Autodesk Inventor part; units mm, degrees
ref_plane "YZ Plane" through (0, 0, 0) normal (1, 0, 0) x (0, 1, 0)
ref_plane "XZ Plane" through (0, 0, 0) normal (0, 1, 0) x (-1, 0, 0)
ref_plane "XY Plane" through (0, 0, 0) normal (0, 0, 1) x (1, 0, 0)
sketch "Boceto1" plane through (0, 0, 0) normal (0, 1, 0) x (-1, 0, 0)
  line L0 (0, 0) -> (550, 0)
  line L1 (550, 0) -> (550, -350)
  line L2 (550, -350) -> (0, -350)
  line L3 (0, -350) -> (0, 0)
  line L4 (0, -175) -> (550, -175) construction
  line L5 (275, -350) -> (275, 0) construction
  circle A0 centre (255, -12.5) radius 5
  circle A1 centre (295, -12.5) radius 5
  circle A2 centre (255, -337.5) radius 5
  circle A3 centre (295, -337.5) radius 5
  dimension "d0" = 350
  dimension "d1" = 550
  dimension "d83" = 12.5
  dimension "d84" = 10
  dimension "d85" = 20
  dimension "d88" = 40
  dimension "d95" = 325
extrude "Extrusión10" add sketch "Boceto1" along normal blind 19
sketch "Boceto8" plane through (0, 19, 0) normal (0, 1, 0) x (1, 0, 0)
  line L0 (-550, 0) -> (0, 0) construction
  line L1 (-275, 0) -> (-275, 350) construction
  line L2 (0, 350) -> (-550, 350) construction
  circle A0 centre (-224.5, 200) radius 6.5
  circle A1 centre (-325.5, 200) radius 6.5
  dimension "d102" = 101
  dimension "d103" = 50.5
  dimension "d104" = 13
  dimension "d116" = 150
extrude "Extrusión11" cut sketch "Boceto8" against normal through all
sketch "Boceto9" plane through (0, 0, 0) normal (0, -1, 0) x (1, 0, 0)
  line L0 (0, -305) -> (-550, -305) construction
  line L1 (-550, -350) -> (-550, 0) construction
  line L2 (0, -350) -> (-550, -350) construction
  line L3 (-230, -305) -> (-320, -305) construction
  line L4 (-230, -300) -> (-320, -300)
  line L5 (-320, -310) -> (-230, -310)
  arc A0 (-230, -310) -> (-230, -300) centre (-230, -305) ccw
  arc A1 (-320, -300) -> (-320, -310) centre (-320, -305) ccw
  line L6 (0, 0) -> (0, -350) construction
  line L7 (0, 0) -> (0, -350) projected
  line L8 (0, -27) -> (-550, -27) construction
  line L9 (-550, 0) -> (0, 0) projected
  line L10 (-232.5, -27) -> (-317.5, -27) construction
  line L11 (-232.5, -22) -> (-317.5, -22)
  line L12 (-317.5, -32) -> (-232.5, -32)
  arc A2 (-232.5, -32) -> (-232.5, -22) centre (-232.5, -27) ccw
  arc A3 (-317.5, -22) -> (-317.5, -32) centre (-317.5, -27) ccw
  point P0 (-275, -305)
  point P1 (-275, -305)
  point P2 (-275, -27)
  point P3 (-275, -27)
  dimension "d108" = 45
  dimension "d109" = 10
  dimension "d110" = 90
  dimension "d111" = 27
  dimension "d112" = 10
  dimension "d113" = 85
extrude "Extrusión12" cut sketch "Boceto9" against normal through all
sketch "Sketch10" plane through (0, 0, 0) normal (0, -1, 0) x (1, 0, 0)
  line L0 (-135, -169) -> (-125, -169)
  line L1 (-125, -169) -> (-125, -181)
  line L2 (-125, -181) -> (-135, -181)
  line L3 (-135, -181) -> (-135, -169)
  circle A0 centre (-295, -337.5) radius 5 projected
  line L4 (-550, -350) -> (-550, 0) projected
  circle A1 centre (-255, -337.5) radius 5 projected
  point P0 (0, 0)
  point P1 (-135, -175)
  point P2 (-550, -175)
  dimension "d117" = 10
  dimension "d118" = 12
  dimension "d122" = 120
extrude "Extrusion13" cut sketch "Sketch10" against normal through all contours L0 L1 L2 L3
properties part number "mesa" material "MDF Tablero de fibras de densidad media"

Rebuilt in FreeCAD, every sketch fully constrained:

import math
import FreeCAD as App
import Part
import Sketcher

V = App.Vector
Q = App.Units.Quantity


def add_polygon(sketch, points):
    """Adds a closed chain of lines whose ends are joined by coincident constraints."""
    first, n = sketch.GeometryCount, len(points)
    for a, b in zip(points, points[1:] + points[:1]):
        sketch.addGeometry(Part.LineSegment(App.Vector(*a, 0), App.Vector(*b, 0)), False)
    for i in range(n):
        sketch.addConstraint(Sketcher.Constraint("Coincident", first + i, 2, first + (i + 1) % n, 1))

doc = App.newDocument("Part")
body = doc.addObject("PartDesign::Body", "Body")

sketch1 = doc.addObject("Sketcher::SketchObject", "Sketch")
body.addObject(sketch1)
sketch1.AttachmentSupport = (doc.XZ_Plane, [""])
sketch1.MapMode = "FlatFace"
add_polygon(sketch1, [(-550, 0), (0, 0), (0, -350), (-550, -350)])
sketch1.addGeometry(Part.Circle(V(-255, -338, 0), V(0, 0, 1), 5), False)
sketch1.addGeometry(Part.Circle(V(-295, -338, 0), V(0, 0, 1), 5), False)
sketch1.addGeometry(Part.Circle(V(-255, -12, 0), V(0, 0, 1), 5), False)
sketch1.addGeometry(Part.Circle(V(-295, -12, 0), V(0, 0, 1), 5), False)
sketch1.addConstraint([
    Sketcher.Constraint("Horizontal", 0),
    Sketcher.Constraint("Vertical", 1),
    Sketcher.Constraint("Horizontal", 2),
    Sketcher.Constraint("Vertical", 3),
    Sketcher.Constraint("Coincident", 0, 2, -1, 1),
    Sketcher.Constraint("Equal", 4, 5),
    Sketcher.Constraint("Equal", 5, 6),
    Sketcher.Constraint("Equal", 6, 7),
    Sketcher.Constraint("Horizontal", 4, 3, 5, 3),
    Sketcher.Constraint("Horizontal", 6, 3, 7, 3),
    Sketcher.Constraint("Vertical", 4, 3, 6, 3),
    Sketcher.Constraint("Vertical", 5, 3, 7, 3),
    Sketcher.Constraint("Diameter", 4, Q("10 mm")),
    Sketcher.Constraint("DistanceX", 0, 1, 0, 2, Q("550 mm")),
    Sketcher.Constraint("DistanceY", 1, 2, 1, 1, Q("350 mm")),
    Sketcher.Constraint("DistanceX", 5, 3, 4, 3, Q("40 mm")),
    Sketcher.Constraint("DistanceY", 4, 3, 6, 3, Q("325 mm")),
    Sketcher.Constraint("DistanceY", 6, 3, -1, 1, Q("12.5 mm")),
    Sketcher.Constraint("DistanceX", 4, 3, -1, 1, Q("255 mm")),
])
pad1 = doc.addObject("PartDesign::Pad", "Pad")
body.addObject(pad1)
pad1.Profile = sketch1
pad1.Length = 19
pad1.Reversed = True

sketch2 = doc.addObject("Sketcher::SketchObject", "Sketch001")
body.addObject(sketch2)
sketch2.AttachmentSupport = (doc.XZ_Plane, [""])
sketch2.MapMode = "FlatFace"
sketch2.AttachmentOffset = App.Placement(V(0, 0, -19), App.Rotation())
sketch2.addGeometry([
    Part.Circle(V(-224, -200, 0), V(0, 0, 1), 6),
    Part.Circle(V(-326, -200, 0), V(0, 0, 1), 6),
], False)
sketch2.addConstraint([
    Sketcher.Constraint("Equal", 0, 1),
    Sketcher.Constraint("Horizontal", 0, 3, 1, 3),
    Sketcher.Constraint("Diameter", 0, Q("13 mm")),
    Sketcher.Constraint("DistanceX", 1, 3, 0, 3, Q("101 mm")),
    Sketcher.Constraint("DistanceY", 0, 3, -1, 1, Q("200 mm")),
    Sketcher.Constraint("DistanceX", 0, 3, -1, 1, Q("224.5 mm")),
])
pocket1 = doc.addObject("PartDesign::Pocket", "Pocket")
body.addObject(pocket1)
pocket1.Profile = sketch2
pocket1.Type = "ThroughAll"
pocket1.Reversed = True

sketch3 = doc.addObject("Sketcher::SketchObject", "Sketch002")
body.addObject(sketch3)
sketch3.AttachmentSupport = (doc.XZ_Plane, [""])
sketch3.MapMode = "FlatFace"
sketch3.addGeometry([
    Part.ArcOfCircle(Part.Circle(V(-230, -305, 0), V(0, 0, 1), 5), math.radians(-90), math.radians(90)),
    Part.LineSegment(V(-230, -300, 0), V(-320, -300, 0)),
    Part.ArcOfCircle(Part.Circle(V(-320, -305, 0), V(0, 0, 1), 5), math.radians(90), math.radians(270)),
    Part.LineSegment(V(-320, -310, 0), V(-230, -310, 0)),
    Part.ArcOfCircle(Part.Circle(V(-232, -27, 0), V(0, 0, 1), 5), math.radians(-90), math.radians(90)),
    Part.LineSegment(V(-232, -22, 0), V(-318, -22, 0)),
    Part.ArcOfCircle(Part.Circle(V(-318, -27, 0), V(0, 0, 1), 5), math.radians(90), math.radians(270)),
    Part.LineSegment(V(-318, -32, 0), V(-232, -32, 0)),
], False)
sketch3.addConstraint([
    Sketcher.Constraint("Tangent", 0, 2, 1, 1),
    Sketcher.Constraint("Tangent", 1, 2, 2, 1),
    Sketcher.Constraint("Tangent", 2, 2, 3, 1),
    Sketcher.Constraint("Tangent", 3, 2, 0, 1),
    Sketcher.Constraint("Tangent", 4, 2, 5, 1),
    Sketcher.Constraint("Tangent", 5, 2, 6, 1),
    Sketcher.Constraint("Tangent", 6, 2, 7, 1),
    Sketcher.Constraint("Tangent", 7, 2, 4, 1),
    Sketcher.Constraint("Horizontal", 1),
    Sketcher.Constraint("Horizontal", 3),
    Sketcher.Constraint("Horizontal", 5),
    Sketcher.Constraint("Horizontal", 7),
    Sketcher.Constraint("Equal", 2, 4),
    Sketcher.Constraint("Radius", 0, Q("5 mm")),
    Sketcher.Constraint("DistanceX", 1, 2, 1, 1, Q("90 mm")),
    Sketcher.Constraint("DistanceX", 5, 2, 5, 1, Q("85 mm")),
    Sketcher.Constraint("DistanceY", 4, 3, -1, 1, Q("27 mm")),
    Sketcher.Constraint("DistanceX", 0, 3, -1, 1, Q("230 mm")),
    Sketcher.Constraint("DistanceY", 0, 3, -1, 1, Q("305 mm")),
    Sketcher.Constraint("DistanceX", 4, 3, -1, 1, Q("232.5 mm")),
])
pocket2 = doc.addObject("PartDesign::Pocket", "Pocket001")
body.addObject(pocket2)
pocket2.Profile = sketch3
pocket2.Type = "ThroughAll"

sketch4 = doc.addObject("Sketcher::SketchObject", "Sketch003")
body.addObject(sketch4)
sketch4.AttachmentSupport = (doc.XZ_Plane, [""])
sketch4.MapMode = "FlatFace"
add_polygon(sketch4, [(-125, -169), (-135, -169), (-135, -181), (-125, -181)])
sketch4.addConstraint([
    Sketcher.Constraint("Horizontal", 0),
    Sketcher.Constraint("Vertical", 1),
    Sketcher.Constraint("Horizontal", 2),
    Sketcher.Constraint("Vertical", 3),
    Sketcher.Constraint("DistanceX", 0, 2, 0, 1, Q("10 mm")),
    Sketcher.Constraint("DistanceY", 1, 2, 1, 1, Q("12 mm")),
    Sketcher.Constraint("DistanceX", 0, 2, -1, 1, Q("135 mm")),
    Sketcher.Constraint("DistanceY", 0, 2, -1, 1, Q("169 mm")),
])
pocket3 = doc.addObject("PartDesign::Pocket", "Pocket002")
body.addObject(pocket3)
pocket3.Profile = sketch4
pocket3.Type = "ThroughAll"

doc.recompute()
